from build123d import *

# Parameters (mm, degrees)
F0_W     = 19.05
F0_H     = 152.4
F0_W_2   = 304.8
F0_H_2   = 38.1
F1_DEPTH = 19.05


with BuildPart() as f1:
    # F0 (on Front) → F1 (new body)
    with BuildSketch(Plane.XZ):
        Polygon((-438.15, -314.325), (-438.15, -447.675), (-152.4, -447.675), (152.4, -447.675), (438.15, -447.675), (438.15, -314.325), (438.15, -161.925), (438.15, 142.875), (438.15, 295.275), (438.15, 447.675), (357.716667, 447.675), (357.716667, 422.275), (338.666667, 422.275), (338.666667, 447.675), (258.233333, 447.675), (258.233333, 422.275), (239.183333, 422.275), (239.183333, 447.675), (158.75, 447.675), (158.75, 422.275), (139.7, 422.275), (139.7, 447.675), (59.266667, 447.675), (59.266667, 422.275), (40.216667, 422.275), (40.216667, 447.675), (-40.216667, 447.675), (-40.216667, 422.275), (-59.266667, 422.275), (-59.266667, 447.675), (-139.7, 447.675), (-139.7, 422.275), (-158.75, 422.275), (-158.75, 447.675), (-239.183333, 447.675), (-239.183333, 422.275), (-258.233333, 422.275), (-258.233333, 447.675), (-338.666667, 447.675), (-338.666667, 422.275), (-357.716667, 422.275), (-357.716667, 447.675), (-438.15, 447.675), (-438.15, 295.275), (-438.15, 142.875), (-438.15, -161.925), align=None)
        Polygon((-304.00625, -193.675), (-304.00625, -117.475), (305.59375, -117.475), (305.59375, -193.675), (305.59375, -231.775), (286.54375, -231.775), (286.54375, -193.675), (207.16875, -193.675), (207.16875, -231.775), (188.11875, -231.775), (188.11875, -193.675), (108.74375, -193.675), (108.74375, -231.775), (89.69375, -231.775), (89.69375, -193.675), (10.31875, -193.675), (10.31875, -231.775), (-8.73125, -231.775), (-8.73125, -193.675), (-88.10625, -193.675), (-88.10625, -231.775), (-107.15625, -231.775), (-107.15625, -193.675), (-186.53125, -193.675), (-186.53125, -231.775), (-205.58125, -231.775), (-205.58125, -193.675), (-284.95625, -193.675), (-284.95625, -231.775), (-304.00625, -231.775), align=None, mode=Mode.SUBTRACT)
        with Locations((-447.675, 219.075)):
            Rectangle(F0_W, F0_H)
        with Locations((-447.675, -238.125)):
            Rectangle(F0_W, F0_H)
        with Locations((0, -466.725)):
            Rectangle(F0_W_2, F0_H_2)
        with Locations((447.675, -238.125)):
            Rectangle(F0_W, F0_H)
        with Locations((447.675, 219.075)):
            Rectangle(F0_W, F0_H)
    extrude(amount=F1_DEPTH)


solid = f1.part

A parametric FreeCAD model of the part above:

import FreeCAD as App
import Part
import Sketcher
Q = App.Units.Quantity


def add_polygon(sketch, points):
    """Adds a closed chain of lines whose ends are joined by coincident constraints."""
    first, n = sketch.GeometryCount, len(points)
    for a, b in zip(points, points[1:] + points[:1]):
        sketch.addGeometry(Part.LineSegment(App.Vector(*a, 0), App.Vector(*b, 0)), False)
    for i in range(n):
        sketch.addConstraint(Sketcher.Constraint("Coincident", first + i, 2, first + (i + 1) % n, 1))

doc = App.newDocument("Part")
params = doc.addObject("Spreadsheet::Sheet", "Params")
for row, (alias, value) in enumerate([
    ("sketch1_width", "12 in"),
    ("sketch1_width2", "24 in"),
    ("sketch1_height", "6 in"),
    ("sketch1_height2", "1 in"),
    ("sketch1_height3", "1.5 in"),
    ("pad1_length", "0.75 in"),
], start=1):
    params.set(f"A{row}", alias)
    params.set(f"B{row}", "=" + value)
    params.setAlias(f"B{row}", alias)

body = doc.addObject("PartDesign::Body", "Body")

sketch1 = body.newObject("Sketcher::SketchObject", "Sketch")
sketch1.AttachmentSupport = (doc.getObject("XZ_Plane"), [""])
sketch1.MapMode = "FlatFace"
add_polygon(sketch1, [(-438.15, -314.325), (-438.15, -447.675), (-152.4, -447.675), (-152.4, -485.775), (152.4, -485.775), (152.4, -447.675), (438.15, -447.675), (438.15, -314.325), (457.2, -314.325), (457.2, -161.925), (438.15, -161.925), (438.15, 142.875), (457.2, 142.875), (457.2, 295.275), (438.15, 295.275), (438.15, 447.675), (357.716667, 447.675), (357.716667, 422.275), (338.666667, 422.275), (338.666667, 447.675), (258.233333, 447.675), (258.233333, 422.275), (239.183333, 422.275), (239.183333, 447.675), (158.75, 447.675), (158.75, 422.275), (139.7, 422.275), (139.7, 447.675), (59.266667, 447.675), (59.266667, 422.275), (40.216667, 422.275), (40.216667, 447.675), (-40.216667, 447.675), (-40.216667, 422.275), (-59.266667, 422.275), (-59.266667, 447.675), (-139.7, 447.675), (-139.7, 422.275), (-158.75, 422.275), (-158.75, 447.675), (-239.183333, 447.675), (-239.183333, 422.275), (-258.233333, 422.275), (-258.233333, 447.675), (-338.666667, 447.675), (-338.666667, 422.275), (-357.716667, 422.275), (-357.716667, 447.675), (-438.15, 447.675), (-438.15, 295.275), (-457.2, 295.275), (-457.2, 142.875), (-438.15, 142.875), (-438.15, -161.925), (-457.2, -161.925), (-457.2, -314.325)])
add_polygon(sketch1, [(-304.00625, -231.775), (-304.00625, -117.475), (305.59375, -117.475), (305.59375, -231.775), (286.54375, -231.775), (286.54375, -193.675), (207.16875, -193.675), (207.16875, -231.775), (188.11875, -231.775), (188.11875, -193.675), (108.74375, -193.675), (108.74375, -231.775), (89.69375, -231.775), (89.69375, -193.675), (10.31875, -193.675), (10.31875, -231.775), (-8.73125, -231.775), (-8.73125, -193.675), (-88.10625, -193.675), (-88.10625, -231.775), (-107.15625, -231.775), (-107.15625, -193.675), (-186.53125, -193.675), (-186.53125, -231.775), (-205.58125, -231.775), (-205.58125, -193.675), (-284.95625, -193.675), (-284.95625, -231.775)])
sketch1.addConstraint([
    Sketcher.Constraint("Vertical", 0),
    Sketcher.Constraint("Horizontal", 1),
    Sketcher.Constraint("Vertical", 2),
    Sketcher.Constraint("Horizontal", 3),
    Sketcher.Constraint("Vertical", 4),
    Sketcher.Constraint("Horizontal", 5),
    Sketcher.Constraint("Vertical", 6),
    Sketcher.Constraint("Horizontal", 7),
    Sketcher.Constraint("Vertical", 8),
    Sketcher.Constraint("Horizontal", 9),
    Sketcher.Constraint("Vertical", 10),
    Sketcher.Constraint("Horizontal", 11),
    Sketcher.Constraint("Vertical", 12),
    Sketcher.Constraint("Horizontal", 13),
    Sketcher.Constraint("Vertical", 14),
    Sketcher.Constraint("Horizontal", 15),
    Sketcher.Constraint("Vertical", 16),
    Sketcher.Constraint("Horizontal", 17),
    Sketcher.Constraint("Vertical", 18),
    Sketcher.Constraint("Horizontal", 19),
    Sketcher.Constraint("Vertical", 20),
    Sketcher.Constraint("Horizontal", 21),
    Sketcher.Constraint("Vertical", 22),
    Sketcher.Constraint("Horizontal", 23),
    Sketcher.Constraint("Vertical", 24),
    Sketcher.Constraint("Horizontal", 25),
    Sketcher.Constraint("Vertical", 26),
    Sketcher.Constraint("Horizontal", 27),
    Sketcher.Constraint("Vertical", 28),
    Sketcher.Constraint("Horizontal", 29),
    Sketcher.Constraint("Vertical", 30),
    Sketcher.Constraint("Horizontal", 31),
    Sketcher.Constraint("Vertical", 32),
    Sketcher.Constraint("Horizontal", 33),
    Sketcher.Constraint("Vertical", 34),
    Sketcher.Constraint("Horizontal", 35),
    Sketcher.Constraint("Vertical", 36),
    Sketcher.Constraint("Horizontal", 37),
    Sketcher.Constraint("Vertical", 38),
    Sketcher.Constraint("Horizontal", 39),
    Sketcher.Constraint("Vertical", 40),
    Sketcher.Constraint("Horizontal", 41),
    Sketcher.Constraint("Vertical", 42),
    Sketcher.Constraint("Horizontal", 43),
    Sketcher.Constraint("Vertical", 44),
    Sketcher.Constraint("Horizontal", 45),
    Sketcher.Constraint("Vertical", 46),
    Sketcher.Constraint("Horizontal", 47),
    Sketcher.Constraint("Vertical", 48),
    Sketcher.Constraint("Horizontal", 49),
    Sketcher.Constraint("Vertical", 50),
    Sketcher.Constraint("Horizontal", 51),
    Sketcher.Constraint("Vertical", 52),
    Sketcher.Constraint("Horizontal", 53),
    Sketcher.Constraint("Vertical", 54),
    Sketcher.Constraint("Horizontal", 55),
    Sketcher.Constraint("Vertical", 56),
    Sketcher.Constraint("Horizontal", 57),
    Sketcher.Constraint("Vertical", 58),
    Sketcher.Constraint("Horizontal", 59),
    Sketcher.Constraint("Vertical", 60),
    Sketcher.Constraint("Horizontal", 61),
    Sketcher.Constraint("Vertical", 62),
    Sketcher.Constraint("Horizontal", 63),
    Sketcher.Constraint("Vertical", 64),
    Sketcher.Constraint("Horizontal", 65),
    Sketcher.Constraint("Vertical", 66),
    Sketcher.Constraint("Horizontal", 67),
    Sketcher.Constraint("Vertical", 68),
    Sketcher.Constraint("Horizontal", 69),
    Sketcher.Constraint("Vertical", 70),
    Sketcher.Constraint("Horizontal", 71),
    Sketcher.Constraint("Vertical", 72),
    Sketcher.Constraint("Horizontal", 73),
    Sketcher.Constraint("Vertical", 74),
    Sketcher.Constraint("Horizontal", 75),
    Sketcher.Constraint("Vertical", 76),
    Sketcher.Constraint("Horizontal", 77),
    Sketcher.Constraint("Vertical", 78),
    Sketcher.Constraint("Horizontal", 79),
    Sketcher.Constraint("Vertical", 80),
    Sketcher.Constraint("Horizontal", 81),
    Sketcher.Constraint("Vertical", 82),
    Sketcher.Constraint("Horizontal", 83),
    Sketcher.Constraint("Symmetric", 0, 2, 14, 2, -1, 1),
    Sketcher.Constraint("Symmetric", 5, 2, 47, 2, -1, 1),
    Sketcher.Constraint("Symmetric", 1, 2, 4, 2, -2),
    Sketcher.Constraint("Symmetric", 29, 2, 32, 2, -2),
    Sketcher.Constraint("Symmetric", 27, 2, 34, 2, -2),
    Sketcher.Constraint("Symmetric", 25, 2, 36, 2, -2),
    Sketcher.Constraint("Symmetric", 23, 2, 38, 2, -2),
    Sketcher.Constraint("Symmetric", 21, 2, 40, 2, -2),
    Sketcher.Constraint("Symmetric", 19, 2, 42, 2, -2),
    Sketcher.Constraint("Symmetric", 17, 2, 44, 2, -2),
    Sketcher.Constraint("Symmetric", 13, 2, 48, 2, -2),
    Sketcher.Constraint("Symmetric", 11, 2, 50, 2, -2),
    Sketcher.Constraint("Symmetric", 9, 2, 52, 2, -2),
    Sketcher.Constraint("Symmetric", 7, 2, 54, 2, -2),
    Sketcher.Constraint("Horizontal", 15, 2, 18, 2),
    Sketcher.Constraint("Horizontal", 17, 2, 20, 2),
    Sketcher.Constraint("Horizontal", 19, 2, 22, 2),
    Sketcher.Constraint("Horizontal", 21, 2, 24, 2),
    Sketcher.Constraint("Horizontal", 23, 2, 26, 2),
    Sketcher.Constraint("Horizontal", 25, 2, 28, 2),
    Sketcher.Constraint("Horizontal", 27, 2, 30, 2),
    Sketcher.Constraint("Horizontal", 59, 2, 62, 2),
    Sketcher.Constraint("Horizontal", 61, 2, 64, 2),
    Sketcher.Constraint("Horizontal", 63, 2, 66, 2),
    Sketcher.Constraint("Horizontal", 65, 2, 68, 2),
    Sketcher.Constraint("Horizontal", 67, 2, 70, 2),
    Sketcher.Constraint("Horizontal", 69, 2, 72, 2),
    Sketcher.Constraint("Horizontal", 71, 2, 74, 2),
    Sketcher.Constraint("Horizontal", 73, 2, 76, 2),
    Sketcher.Constraint("Horizontal", 75, 2, 78, 2),
    Sketcher.Constraint("Horizontal", 77, 2, 80, 2),
    Sketcher.Constraint("Horizontal", 79, 2, 82, 2),
    Sketcher.Constraint("Vertical", 6, 2, 9, 2),
    Sketcher.Constraint("Vertical", 8, 2, 11, 2),
    Sketcher.Constraint("Equal", 13, 17),
    Sketcher.Constraint("Equal", 15, 19),
    Sketcher.Constraint("Equal", 17, 21),
    Sketcher.Constraint("Equal", 19, 23),
    Sketcher.Constraint("Equal", 21, 25),
    Sketcher.Constraint("Equal", 23, 27),
    Sketcher.Constraint("Equal", 25, 29),
    Sketcher.Constraint("Equal", 27, 31),
    Sketcher.Constraint("Equal", 41, 45),
    Sketcher.Constraint("Equal", 55, 59),
    Sketcher.Constraint("Equal", 59, 63),
    Sketcher.Constraint("Equal", 61, 65),
    Sketcher.Constraint("Equal", 63, 67),
    Sketcher.Constraint("Equal", 65, 69),
    Sketcher.Constraint("Equal", 67, 71),
    Sketcher.Constraint("Equal", 69, 73),
    Sketcher.Constraint("Equal", 71, 75),
    Sketcher.Constraint("Equal", 73, 77),
    Sketcher.Constraint("Equal", 75, 79),
    Sketcher.Constraint("Equal", 77, 81),
    Sketcher.Constraint("Equal", 79, 83),
    Sketcher.Constraint("Equal", 3, 10),
    Sketcher.Constraint("Equal", 8, 12),
    Sketcher.Constraint("Equal", 12, 14),
    Sketcher.Constraint("Equal", 4, 60),
    Sketcher.Constraint("DistanceX", 3, 1, 3, 2, Q("12 in")),
    Sketcher.Constraint("DistanceX", 57, 1, 57, 2, Q("24 in")),
    Sketcher.Constraint("DistanceY", 8, 1, 8, 2, Q("6 in")),
    Sketcher.Constraint("DistanceY", 16, 2, 16, 1, Q("1 in")),
    Sketcher.Constraint("DistanceY", 2, 2, 2, 1, Q("1.5 in")),
    Sketcher.Constraint("DistanceY", 56, 1, 56, 2, Q("4.5 in")),
    Sketcher.Constraint("DistanceX", -1, 1, 7, 2, Q("18 in")),
    Sketcher.Constraint("DistanceX", 1, 1, 1, 2, Q("11.25 in")),
    Sketcher.Constraint("DistanceY", 0, 2, 0, 1, Q("5.25 in")),
    Sketcher.Constraint("DistanceX", 56, 2, -1, 1, Q("11.96875 in")),
    Sketcher.Constraint("DistanceY", 56, 2, -1, 1, Q("4.625 in")),
])
sketch1.setExpression("Constraints[227]", "Params.sketch1_width")
sketch1.setExpression("Constraints[228]", "Params.sketch1_width2")
sketch1.setExpression("Constraints[229]", "Params.sketch1_height")
sketch1.setExpression("Constraints[230]", "Params.sketch1_height2")
sketch1.setExpression("Constraints[231]", "Params.sketch1_height3")
pad1 = body.newObject("PartDesign::Pad", "Pad")
pad1.Profile = sketch1
pad1.setExpression("Length", "Params.pad1_length")

doc.recompute()
